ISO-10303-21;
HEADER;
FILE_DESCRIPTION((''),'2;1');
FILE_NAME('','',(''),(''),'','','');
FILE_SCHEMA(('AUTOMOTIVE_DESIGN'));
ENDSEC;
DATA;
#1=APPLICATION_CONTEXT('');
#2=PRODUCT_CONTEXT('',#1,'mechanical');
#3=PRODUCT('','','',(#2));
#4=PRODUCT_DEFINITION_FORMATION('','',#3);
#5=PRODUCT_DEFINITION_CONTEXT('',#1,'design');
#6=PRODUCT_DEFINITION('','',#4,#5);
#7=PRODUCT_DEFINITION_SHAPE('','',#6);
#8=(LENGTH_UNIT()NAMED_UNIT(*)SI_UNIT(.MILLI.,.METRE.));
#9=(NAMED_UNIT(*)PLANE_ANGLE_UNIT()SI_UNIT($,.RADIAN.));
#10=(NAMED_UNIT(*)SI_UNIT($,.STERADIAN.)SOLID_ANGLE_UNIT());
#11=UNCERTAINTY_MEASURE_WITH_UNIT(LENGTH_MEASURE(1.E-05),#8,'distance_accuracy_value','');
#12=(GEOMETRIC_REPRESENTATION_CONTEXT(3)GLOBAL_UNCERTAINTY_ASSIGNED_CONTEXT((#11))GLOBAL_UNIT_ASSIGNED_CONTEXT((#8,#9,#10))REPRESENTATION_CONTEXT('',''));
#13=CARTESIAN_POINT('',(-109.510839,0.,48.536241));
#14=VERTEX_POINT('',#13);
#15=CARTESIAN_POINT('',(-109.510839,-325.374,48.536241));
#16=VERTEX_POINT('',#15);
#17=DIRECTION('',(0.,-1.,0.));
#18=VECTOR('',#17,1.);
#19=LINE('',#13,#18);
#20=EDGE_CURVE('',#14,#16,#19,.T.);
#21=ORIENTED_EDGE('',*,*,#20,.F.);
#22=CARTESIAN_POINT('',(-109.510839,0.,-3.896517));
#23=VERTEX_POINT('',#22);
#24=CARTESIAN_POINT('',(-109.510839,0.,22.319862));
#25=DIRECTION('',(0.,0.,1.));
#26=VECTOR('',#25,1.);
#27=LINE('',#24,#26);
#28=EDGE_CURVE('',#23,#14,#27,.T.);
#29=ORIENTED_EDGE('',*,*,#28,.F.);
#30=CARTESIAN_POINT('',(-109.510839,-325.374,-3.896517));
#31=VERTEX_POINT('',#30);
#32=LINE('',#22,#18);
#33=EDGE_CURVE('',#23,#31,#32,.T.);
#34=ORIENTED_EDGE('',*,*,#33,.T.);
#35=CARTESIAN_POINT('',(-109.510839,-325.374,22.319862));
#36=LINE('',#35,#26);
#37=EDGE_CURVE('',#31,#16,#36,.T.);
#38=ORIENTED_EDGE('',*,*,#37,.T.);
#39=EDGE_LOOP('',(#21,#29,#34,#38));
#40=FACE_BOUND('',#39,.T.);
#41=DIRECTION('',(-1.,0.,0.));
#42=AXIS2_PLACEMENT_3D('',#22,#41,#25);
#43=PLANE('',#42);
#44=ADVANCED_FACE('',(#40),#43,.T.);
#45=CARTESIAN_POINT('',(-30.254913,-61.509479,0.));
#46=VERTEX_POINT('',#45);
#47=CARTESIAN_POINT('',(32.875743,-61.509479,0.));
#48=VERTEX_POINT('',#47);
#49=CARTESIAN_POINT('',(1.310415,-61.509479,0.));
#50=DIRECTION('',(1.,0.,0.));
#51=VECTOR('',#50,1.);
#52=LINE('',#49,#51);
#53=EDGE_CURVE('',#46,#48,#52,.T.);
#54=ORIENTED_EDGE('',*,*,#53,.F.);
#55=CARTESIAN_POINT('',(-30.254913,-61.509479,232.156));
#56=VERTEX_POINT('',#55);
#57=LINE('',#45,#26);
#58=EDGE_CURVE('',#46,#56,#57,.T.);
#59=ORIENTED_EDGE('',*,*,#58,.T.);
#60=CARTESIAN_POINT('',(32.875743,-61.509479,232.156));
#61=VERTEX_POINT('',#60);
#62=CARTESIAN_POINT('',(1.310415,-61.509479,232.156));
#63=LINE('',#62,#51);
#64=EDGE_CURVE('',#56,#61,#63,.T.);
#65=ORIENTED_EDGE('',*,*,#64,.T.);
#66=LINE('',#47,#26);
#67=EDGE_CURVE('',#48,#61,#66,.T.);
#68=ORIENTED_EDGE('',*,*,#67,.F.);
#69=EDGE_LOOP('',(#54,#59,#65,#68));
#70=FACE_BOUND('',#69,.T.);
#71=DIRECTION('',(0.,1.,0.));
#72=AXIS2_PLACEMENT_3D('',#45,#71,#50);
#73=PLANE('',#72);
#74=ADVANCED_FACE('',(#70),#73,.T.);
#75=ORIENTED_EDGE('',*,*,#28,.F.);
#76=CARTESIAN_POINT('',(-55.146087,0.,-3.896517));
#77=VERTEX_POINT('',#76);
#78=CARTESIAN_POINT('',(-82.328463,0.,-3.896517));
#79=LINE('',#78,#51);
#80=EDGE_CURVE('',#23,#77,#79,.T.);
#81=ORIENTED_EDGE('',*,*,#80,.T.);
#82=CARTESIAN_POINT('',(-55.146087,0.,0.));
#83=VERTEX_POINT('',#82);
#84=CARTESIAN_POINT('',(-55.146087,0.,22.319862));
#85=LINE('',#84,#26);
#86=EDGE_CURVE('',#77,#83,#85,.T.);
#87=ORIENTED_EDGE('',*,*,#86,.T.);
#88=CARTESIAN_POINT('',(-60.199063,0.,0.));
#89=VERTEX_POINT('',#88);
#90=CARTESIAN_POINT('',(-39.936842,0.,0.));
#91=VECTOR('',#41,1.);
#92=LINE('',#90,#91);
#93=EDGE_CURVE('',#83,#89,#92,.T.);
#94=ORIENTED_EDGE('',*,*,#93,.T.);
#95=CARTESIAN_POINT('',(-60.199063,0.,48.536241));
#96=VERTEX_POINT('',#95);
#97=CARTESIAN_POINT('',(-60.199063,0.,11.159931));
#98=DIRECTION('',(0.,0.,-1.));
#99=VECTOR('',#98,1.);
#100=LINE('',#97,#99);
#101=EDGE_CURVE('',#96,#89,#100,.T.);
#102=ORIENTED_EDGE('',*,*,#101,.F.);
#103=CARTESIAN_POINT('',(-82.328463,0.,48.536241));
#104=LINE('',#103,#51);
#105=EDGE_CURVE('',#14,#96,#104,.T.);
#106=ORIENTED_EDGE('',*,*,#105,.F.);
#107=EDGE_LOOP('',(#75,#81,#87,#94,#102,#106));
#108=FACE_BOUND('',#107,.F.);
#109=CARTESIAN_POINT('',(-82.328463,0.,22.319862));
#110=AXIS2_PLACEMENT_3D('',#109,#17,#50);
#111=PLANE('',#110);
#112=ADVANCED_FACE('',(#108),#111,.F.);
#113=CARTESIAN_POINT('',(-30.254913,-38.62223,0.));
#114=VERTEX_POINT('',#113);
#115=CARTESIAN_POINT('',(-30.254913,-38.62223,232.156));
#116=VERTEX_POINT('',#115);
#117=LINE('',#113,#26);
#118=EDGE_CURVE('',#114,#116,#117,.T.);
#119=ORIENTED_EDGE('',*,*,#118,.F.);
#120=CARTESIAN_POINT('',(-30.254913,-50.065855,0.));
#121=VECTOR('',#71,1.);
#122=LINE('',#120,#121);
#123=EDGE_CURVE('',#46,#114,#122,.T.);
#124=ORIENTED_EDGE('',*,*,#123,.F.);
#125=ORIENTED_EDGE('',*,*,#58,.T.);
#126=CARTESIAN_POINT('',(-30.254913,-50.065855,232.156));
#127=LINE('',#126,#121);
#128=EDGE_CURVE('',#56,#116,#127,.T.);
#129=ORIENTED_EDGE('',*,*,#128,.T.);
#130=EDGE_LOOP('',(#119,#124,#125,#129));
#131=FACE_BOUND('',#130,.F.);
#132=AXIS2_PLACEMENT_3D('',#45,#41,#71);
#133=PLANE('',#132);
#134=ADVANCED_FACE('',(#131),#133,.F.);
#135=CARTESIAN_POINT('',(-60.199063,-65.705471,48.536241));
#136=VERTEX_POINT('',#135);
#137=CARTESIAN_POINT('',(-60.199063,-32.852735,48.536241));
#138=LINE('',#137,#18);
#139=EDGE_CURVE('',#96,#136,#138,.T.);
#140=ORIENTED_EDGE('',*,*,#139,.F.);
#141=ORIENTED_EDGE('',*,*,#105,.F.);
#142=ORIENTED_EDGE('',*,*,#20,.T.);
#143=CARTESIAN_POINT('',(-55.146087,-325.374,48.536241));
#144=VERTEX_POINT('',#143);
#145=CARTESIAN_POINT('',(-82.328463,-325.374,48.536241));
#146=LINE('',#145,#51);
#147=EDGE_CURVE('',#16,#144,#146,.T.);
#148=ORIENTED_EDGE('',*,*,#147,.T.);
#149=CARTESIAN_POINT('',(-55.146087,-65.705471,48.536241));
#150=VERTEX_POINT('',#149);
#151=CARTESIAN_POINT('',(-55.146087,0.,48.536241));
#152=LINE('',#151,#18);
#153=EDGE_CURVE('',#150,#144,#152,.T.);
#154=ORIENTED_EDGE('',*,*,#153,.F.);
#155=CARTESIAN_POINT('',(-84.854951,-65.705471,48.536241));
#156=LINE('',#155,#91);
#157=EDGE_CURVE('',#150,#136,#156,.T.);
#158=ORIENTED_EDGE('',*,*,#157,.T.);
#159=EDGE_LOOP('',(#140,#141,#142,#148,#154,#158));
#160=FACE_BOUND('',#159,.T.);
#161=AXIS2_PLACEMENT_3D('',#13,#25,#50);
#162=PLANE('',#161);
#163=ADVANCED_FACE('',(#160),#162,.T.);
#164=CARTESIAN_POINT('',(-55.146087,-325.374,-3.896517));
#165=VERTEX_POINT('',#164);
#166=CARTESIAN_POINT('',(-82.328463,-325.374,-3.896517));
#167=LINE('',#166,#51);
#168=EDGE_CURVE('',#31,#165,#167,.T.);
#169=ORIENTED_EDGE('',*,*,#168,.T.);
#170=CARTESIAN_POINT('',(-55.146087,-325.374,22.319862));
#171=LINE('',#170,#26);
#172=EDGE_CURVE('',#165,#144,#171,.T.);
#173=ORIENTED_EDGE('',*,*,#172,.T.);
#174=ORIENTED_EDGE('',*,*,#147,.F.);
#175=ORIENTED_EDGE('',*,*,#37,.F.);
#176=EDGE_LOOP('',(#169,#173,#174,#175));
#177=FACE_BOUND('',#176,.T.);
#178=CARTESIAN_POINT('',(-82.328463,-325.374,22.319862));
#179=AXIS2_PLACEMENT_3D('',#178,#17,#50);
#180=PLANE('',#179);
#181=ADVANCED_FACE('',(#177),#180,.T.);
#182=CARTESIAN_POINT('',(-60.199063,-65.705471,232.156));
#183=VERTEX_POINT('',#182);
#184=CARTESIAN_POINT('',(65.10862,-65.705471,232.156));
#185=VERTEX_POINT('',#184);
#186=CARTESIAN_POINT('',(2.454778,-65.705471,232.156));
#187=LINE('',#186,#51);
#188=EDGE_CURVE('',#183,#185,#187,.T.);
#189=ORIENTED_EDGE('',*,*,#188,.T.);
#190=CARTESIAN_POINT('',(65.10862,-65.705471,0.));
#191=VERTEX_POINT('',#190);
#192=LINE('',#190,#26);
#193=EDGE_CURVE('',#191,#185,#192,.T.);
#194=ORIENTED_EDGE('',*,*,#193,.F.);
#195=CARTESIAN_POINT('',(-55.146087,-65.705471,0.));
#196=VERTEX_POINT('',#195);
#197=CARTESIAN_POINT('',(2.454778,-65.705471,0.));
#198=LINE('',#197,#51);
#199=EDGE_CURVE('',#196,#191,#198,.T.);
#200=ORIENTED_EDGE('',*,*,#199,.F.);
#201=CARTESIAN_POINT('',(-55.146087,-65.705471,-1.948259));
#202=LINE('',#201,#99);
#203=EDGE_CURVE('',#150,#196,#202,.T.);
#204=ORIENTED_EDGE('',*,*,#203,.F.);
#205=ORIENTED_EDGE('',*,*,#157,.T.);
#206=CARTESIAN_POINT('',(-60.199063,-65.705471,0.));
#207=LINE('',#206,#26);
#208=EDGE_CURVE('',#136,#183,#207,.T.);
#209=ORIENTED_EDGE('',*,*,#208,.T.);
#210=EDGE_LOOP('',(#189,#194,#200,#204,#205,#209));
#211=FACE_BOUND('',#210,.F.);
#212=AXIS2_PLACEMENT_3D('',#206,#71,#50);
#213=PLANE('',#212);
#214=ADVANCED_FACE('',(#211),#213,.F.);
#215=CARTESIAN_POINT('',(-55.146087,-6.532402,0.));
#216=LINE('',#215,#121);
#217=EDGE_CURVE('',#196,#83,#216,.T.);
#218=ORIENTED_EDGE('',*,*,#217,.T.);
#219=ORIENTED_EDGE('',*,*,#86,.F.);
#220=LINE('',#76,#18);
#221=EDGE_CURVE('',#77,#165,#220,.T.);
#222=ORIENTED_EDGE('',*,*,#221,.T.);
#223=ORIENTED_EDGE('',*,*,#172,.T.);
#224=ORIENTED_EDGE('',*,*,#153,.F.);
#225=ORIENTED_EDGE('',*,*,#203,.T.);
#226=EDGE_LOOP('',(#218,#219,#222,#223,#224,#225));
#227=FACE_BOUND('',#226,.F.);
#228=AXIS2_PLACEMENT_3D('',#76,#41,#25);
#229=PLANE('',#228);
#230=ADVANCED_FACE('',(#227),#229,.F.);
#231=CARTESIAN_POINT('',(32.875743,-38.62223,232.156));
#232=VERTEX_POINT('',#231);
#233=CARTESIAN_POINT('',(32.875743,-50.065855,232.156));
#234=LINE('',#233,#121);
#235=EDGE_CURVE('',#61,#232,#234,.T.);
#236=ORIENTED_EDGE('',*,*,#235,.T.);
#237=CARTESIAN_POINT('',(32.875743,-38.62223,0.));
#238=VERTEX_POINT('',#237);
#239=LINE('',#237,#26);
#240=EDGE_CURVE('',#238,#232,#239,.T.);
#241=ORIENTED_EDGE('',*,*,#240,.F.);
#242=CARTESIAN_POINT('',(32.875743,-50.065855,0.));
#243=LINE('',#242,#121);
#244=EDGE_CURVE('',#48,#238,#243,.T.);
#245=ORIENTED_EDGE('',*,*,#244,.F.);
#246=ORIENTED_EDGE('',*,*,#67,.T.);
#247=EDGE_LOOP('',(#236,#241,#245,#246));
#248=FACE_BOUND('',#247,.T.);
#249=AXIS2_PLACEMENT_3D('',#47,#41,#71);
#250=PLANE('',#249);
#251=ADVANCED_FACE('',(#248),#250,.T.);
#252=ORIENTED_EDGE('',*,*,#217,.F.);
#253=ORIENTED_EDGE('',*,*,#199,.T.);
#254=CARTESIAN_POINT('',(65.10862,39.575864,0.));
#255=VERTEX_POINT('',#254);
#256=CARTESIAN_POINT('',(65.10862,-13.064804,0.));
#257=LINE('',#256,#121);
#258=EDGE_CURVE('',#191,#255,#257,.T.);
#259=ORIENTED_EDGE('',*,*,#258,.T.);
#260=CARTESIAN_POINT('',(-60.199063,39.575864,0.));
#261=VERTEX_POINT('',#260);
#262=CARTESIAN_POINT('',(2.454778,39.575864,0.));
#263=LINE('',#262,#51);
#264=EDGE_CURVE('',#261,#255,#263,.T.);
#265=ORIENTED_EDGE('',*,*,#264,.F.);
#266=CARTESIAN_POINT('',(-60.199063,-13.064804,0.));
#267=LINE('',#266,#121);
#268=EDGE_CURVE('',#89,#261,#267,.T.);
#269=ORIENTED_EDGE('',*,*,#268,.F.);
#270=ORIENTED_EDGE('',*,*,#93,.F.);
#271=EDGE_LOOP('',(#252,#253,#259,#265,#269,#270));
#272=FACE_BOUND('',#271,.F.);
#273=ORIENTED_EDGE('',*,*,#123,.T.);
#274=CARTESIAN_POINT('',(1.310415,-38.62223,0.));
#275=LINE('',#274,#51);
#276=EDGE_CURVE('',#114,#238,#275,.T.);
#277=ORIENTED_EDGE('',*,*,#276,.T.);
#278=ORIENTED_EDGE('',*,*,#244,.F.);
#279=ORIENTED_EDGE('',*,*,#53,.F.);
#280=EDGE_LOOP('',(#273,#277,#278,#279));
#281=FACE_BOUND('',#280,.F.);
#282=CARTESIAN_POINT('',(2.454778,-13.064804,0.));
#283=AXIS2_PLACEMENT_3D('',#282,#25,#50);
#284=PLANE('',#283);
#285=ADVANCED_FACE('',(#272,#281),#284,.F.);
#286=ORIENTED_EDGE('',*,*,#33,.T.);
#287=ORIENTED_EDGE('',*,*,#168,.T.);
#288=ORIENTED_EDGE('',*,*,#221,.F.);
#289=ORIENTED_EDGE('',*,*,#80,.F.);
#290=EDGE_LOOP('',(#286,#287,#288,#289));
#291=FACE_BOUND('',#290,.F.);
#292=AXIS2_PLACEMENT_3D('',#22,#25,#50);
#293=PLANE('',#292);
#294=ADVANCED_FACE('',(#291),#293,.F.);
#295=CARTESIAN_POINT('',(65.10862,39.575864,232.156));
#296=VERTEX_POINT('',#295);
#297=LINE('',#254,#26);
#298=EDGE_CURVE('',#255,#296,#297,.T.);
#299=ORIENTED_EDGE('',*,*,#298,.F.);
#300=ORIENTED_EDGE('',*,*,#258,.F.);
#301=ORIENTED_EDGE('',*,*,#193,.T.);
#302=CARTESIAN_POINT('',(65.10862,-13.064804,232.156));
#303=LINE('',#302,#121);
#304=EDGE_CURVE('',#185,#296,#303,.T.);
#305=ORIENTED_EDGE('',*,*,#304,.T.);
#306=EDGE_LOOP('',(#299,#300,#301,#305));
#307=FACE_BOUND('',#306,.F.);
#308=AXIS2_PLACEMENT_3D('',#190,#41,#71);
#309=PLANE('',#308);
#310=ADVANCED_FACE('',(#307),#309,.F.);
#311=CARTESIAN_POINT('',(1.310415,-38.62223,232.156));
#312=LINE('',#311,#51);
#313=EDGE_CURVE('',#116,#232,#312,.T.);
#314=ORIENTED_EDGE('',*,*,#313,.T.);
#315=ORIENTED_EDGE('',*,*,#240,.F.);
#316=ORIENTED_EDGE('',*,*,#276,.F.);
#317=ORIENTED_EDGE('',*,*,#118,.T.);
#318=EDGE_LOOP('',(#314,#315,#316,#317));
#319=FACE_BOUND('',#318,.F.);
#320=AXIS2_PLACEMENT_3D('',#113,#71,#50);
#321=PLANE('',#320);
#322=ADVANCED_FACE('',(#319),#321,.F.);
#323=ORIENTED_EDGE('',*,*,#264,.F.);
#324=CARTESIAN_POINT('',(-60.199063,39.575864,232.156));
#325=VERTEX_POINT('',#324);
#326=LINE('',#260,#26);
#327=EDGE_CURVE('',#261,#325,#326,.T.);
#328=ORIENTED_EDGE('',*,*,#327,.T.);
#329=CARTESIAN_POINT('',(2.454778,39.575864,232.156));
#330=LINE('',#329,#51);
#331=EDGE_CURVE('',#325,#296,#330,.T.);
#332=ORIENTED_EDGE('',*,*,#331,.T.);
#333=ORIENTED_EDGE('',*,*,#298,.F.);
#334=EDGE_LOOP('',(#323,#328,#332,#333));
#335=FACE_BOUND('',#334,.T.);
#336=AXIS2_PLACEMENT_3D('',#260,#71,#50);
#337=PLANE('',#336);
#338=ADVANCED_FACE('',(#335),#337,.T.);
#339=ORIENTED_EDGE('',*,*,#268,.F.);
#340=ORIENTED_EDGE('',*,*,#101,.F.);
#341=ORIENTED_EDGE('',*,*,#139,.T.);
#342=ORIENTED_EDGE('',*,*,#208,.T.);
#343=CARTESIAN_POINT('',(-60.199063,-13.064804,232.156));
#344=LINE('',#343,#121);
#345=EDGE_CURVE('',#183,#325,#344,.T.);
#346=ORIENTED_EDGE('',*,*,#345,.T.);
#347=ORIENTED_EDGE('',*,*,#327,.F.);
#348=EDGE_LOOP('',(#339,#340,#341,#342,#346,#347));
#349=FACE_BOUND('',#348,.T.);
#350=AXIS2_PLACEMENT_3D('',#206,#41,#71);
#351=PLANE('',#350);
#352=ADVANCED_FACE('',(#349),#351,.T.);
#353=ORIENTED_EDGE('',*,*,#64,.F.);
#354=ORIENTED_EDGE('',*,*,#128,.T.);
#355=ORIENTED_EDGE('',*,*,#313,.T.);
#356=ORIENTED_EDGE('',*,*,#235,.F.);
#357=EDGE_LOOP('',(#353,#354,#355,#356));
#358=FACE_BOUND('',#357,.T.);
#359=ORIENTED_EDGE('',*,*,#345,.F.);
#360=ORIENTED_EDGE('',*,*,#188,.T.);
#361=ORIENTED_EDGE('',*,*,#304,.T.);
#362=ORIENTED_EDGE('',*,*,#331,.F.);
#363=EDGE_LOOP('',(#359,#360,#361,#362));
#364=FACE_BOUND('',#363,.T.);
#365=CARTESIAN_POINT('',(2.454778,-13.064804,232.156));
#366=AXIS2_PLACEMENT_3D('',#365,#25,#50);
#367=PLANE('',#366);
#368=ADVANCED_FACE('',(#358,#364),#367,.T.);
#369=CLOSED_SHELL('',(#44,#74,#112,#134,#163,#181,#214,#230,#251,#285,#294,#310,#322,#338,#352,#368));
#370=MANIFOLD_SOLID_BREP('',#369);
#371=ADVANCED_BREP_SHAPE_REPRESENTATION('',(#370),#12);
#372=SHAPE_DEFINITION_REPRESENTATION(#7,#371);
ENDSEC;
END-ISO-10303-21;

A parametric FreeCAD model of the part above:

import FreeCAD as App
import Part
import Sketcher


def add_polygon(sketch, points):
    """Adds a closed chain of lines whose ends are joined by coincident constraints."""
    first, n = sketch.GeometryCount, len(points)
    for a, b in zip(points, points[1:] + points[:1]):
        sketch.addGeometry(Part.LineSegment(App.Vector(*a, 0), App.Vector(*b, 0)), False)
    for i in range(n):
        sketch.addConstraint(Sketcher.Constraint("Coincident", first + i, 2, first + (i + 1) % n, 1))

doc = App.newDocument("Part")
params = doc.addObject("Spreadsheet::Sheet", "Params")
for row, (alias, value) in enumerate([
    ("pad1_length", "12.81 in"),
    ("pad2_length", "9.14 in"),
], start=1):
    params.set(f"A{row}", alias)
    params.set(f"B{row}", "=" + value)
    params.setAlias(f"B{row}", alias)

body = doc.addObject("PartDesign::Body", "Body")

sketch1 = body.newObject("Sketcher::SketchObject", "Sketch")
sketch1.AttachmentSupport = (doc.getObject("XZ_Plane"), [""])
sketch1.MapMode = "FlatFace"
add_polygon(sketch1, [(-110, 49), (-110, -4), (-55, -4), (-55, 49)])
sketch1.addConstraint(Sketcher.Constraint("Vertical", 0))
sketch1.addConstraint(Sketcher.Constraint("Horizontal", 1))
sketch1.addConstraint(Sketcher.Constraint("Vertical", 2))
sketch1.addConstraint(Sketcher.Constraint("Horizontal", 3))
sketch1.addConstraint(Sketcher.Constraint("DistanceY", 0, 2, 0, 1, 52.432758))
sketch1.addConstraint(Sketcher.Constraint("DistanceX", 1, 1, 1, 2, 54.364752))
sketch1.addConstraint(Sketcher.Constraint("DistanceX", 0, 2, -1, 1, 109.510839))
sketch1.addConstraint(Sketcher.Constraint("DistanceY", -1, 1, 2, 2, 48.536241))
pad1 = body.newObject("PartDesign::Pad", "Pad")
pad1.Profile = sketch1
pad1.setExpression("Length", "Params.pad1_length")

sketch2 = body.newObject("Sketcher::SketchObject", "Sketch001")
sketch2.AttachmentSupport = (doc.getObject("XY_Plane"), [""])
sketch2.MapMode = "FlatFace"
add_polygon(sketch2, [(-60, 40), (-60, -66), (65, -66), (65, 40)])
add_polygon(sketch2, [(33, -62), (-30, -62), (-30, -39), (33, -39)])
sketch2.addConstraint(Sketcher.Constraint("Vertical", 0))
sketch2.addConstraint(Sketcher.Constraint("Horizontal", 1))
sketch2.addConstraint(Sketcher.Constraint("Vertical", 2))
sketch2.addConstraint(Sketcher.Constraint("Horizontal", 3))
sketch2.addConstraint(Sketcher.Constraint("Horizontal", 4))
sketch2.addConstraint(Sketcher.Constraint("Vertical", 5))
sketch2.addConstraint(Sketcher.Constraint("Horizontal", 6))
sketch2.addConstraint(Sketcher.Constraint("Vertical", 7))
sketch2.addConstraint(Sketcher.Constraint("DistanceY", 5, 1, 5, 2, 22.887249))
sketch2.addConstraint(Sketcher.Constraint("DistanceX", 1, 1, 1, 2, 125.307683))
sketch2.addConstraint(Sketcher.Constraint("DistanceX", 4, 2, 4, 1, 63.130656))
sketch2.addConstraint(Sketcher.Constraint("DistanceY", 0, 2, 0, 1, 105.281334))
sketch2.addConstraint(Sketcher.Constraint("DistanceY", 0, 2, -1, 1, 65.705471))
sketch2.addConstraint(Sketcher.Constraint("DistanceX", -1, 1, 1, 2, 65.10862))
sketch2.addConstraint(Sketcher.Constraint("DistanceY", 4, 2, -1, 1, 61.509479))
sketch2.addConstraint(Sketcher.Constraint("DistanceX", 0, 2, 4, 2, 29.94415))
pad2 = body.newObject("PartDesign::Pad", "Pad001")
pad2.Profile = sketch2
pad2.setExpression("Length", "Params.pad2_length")

doc.recompute()
